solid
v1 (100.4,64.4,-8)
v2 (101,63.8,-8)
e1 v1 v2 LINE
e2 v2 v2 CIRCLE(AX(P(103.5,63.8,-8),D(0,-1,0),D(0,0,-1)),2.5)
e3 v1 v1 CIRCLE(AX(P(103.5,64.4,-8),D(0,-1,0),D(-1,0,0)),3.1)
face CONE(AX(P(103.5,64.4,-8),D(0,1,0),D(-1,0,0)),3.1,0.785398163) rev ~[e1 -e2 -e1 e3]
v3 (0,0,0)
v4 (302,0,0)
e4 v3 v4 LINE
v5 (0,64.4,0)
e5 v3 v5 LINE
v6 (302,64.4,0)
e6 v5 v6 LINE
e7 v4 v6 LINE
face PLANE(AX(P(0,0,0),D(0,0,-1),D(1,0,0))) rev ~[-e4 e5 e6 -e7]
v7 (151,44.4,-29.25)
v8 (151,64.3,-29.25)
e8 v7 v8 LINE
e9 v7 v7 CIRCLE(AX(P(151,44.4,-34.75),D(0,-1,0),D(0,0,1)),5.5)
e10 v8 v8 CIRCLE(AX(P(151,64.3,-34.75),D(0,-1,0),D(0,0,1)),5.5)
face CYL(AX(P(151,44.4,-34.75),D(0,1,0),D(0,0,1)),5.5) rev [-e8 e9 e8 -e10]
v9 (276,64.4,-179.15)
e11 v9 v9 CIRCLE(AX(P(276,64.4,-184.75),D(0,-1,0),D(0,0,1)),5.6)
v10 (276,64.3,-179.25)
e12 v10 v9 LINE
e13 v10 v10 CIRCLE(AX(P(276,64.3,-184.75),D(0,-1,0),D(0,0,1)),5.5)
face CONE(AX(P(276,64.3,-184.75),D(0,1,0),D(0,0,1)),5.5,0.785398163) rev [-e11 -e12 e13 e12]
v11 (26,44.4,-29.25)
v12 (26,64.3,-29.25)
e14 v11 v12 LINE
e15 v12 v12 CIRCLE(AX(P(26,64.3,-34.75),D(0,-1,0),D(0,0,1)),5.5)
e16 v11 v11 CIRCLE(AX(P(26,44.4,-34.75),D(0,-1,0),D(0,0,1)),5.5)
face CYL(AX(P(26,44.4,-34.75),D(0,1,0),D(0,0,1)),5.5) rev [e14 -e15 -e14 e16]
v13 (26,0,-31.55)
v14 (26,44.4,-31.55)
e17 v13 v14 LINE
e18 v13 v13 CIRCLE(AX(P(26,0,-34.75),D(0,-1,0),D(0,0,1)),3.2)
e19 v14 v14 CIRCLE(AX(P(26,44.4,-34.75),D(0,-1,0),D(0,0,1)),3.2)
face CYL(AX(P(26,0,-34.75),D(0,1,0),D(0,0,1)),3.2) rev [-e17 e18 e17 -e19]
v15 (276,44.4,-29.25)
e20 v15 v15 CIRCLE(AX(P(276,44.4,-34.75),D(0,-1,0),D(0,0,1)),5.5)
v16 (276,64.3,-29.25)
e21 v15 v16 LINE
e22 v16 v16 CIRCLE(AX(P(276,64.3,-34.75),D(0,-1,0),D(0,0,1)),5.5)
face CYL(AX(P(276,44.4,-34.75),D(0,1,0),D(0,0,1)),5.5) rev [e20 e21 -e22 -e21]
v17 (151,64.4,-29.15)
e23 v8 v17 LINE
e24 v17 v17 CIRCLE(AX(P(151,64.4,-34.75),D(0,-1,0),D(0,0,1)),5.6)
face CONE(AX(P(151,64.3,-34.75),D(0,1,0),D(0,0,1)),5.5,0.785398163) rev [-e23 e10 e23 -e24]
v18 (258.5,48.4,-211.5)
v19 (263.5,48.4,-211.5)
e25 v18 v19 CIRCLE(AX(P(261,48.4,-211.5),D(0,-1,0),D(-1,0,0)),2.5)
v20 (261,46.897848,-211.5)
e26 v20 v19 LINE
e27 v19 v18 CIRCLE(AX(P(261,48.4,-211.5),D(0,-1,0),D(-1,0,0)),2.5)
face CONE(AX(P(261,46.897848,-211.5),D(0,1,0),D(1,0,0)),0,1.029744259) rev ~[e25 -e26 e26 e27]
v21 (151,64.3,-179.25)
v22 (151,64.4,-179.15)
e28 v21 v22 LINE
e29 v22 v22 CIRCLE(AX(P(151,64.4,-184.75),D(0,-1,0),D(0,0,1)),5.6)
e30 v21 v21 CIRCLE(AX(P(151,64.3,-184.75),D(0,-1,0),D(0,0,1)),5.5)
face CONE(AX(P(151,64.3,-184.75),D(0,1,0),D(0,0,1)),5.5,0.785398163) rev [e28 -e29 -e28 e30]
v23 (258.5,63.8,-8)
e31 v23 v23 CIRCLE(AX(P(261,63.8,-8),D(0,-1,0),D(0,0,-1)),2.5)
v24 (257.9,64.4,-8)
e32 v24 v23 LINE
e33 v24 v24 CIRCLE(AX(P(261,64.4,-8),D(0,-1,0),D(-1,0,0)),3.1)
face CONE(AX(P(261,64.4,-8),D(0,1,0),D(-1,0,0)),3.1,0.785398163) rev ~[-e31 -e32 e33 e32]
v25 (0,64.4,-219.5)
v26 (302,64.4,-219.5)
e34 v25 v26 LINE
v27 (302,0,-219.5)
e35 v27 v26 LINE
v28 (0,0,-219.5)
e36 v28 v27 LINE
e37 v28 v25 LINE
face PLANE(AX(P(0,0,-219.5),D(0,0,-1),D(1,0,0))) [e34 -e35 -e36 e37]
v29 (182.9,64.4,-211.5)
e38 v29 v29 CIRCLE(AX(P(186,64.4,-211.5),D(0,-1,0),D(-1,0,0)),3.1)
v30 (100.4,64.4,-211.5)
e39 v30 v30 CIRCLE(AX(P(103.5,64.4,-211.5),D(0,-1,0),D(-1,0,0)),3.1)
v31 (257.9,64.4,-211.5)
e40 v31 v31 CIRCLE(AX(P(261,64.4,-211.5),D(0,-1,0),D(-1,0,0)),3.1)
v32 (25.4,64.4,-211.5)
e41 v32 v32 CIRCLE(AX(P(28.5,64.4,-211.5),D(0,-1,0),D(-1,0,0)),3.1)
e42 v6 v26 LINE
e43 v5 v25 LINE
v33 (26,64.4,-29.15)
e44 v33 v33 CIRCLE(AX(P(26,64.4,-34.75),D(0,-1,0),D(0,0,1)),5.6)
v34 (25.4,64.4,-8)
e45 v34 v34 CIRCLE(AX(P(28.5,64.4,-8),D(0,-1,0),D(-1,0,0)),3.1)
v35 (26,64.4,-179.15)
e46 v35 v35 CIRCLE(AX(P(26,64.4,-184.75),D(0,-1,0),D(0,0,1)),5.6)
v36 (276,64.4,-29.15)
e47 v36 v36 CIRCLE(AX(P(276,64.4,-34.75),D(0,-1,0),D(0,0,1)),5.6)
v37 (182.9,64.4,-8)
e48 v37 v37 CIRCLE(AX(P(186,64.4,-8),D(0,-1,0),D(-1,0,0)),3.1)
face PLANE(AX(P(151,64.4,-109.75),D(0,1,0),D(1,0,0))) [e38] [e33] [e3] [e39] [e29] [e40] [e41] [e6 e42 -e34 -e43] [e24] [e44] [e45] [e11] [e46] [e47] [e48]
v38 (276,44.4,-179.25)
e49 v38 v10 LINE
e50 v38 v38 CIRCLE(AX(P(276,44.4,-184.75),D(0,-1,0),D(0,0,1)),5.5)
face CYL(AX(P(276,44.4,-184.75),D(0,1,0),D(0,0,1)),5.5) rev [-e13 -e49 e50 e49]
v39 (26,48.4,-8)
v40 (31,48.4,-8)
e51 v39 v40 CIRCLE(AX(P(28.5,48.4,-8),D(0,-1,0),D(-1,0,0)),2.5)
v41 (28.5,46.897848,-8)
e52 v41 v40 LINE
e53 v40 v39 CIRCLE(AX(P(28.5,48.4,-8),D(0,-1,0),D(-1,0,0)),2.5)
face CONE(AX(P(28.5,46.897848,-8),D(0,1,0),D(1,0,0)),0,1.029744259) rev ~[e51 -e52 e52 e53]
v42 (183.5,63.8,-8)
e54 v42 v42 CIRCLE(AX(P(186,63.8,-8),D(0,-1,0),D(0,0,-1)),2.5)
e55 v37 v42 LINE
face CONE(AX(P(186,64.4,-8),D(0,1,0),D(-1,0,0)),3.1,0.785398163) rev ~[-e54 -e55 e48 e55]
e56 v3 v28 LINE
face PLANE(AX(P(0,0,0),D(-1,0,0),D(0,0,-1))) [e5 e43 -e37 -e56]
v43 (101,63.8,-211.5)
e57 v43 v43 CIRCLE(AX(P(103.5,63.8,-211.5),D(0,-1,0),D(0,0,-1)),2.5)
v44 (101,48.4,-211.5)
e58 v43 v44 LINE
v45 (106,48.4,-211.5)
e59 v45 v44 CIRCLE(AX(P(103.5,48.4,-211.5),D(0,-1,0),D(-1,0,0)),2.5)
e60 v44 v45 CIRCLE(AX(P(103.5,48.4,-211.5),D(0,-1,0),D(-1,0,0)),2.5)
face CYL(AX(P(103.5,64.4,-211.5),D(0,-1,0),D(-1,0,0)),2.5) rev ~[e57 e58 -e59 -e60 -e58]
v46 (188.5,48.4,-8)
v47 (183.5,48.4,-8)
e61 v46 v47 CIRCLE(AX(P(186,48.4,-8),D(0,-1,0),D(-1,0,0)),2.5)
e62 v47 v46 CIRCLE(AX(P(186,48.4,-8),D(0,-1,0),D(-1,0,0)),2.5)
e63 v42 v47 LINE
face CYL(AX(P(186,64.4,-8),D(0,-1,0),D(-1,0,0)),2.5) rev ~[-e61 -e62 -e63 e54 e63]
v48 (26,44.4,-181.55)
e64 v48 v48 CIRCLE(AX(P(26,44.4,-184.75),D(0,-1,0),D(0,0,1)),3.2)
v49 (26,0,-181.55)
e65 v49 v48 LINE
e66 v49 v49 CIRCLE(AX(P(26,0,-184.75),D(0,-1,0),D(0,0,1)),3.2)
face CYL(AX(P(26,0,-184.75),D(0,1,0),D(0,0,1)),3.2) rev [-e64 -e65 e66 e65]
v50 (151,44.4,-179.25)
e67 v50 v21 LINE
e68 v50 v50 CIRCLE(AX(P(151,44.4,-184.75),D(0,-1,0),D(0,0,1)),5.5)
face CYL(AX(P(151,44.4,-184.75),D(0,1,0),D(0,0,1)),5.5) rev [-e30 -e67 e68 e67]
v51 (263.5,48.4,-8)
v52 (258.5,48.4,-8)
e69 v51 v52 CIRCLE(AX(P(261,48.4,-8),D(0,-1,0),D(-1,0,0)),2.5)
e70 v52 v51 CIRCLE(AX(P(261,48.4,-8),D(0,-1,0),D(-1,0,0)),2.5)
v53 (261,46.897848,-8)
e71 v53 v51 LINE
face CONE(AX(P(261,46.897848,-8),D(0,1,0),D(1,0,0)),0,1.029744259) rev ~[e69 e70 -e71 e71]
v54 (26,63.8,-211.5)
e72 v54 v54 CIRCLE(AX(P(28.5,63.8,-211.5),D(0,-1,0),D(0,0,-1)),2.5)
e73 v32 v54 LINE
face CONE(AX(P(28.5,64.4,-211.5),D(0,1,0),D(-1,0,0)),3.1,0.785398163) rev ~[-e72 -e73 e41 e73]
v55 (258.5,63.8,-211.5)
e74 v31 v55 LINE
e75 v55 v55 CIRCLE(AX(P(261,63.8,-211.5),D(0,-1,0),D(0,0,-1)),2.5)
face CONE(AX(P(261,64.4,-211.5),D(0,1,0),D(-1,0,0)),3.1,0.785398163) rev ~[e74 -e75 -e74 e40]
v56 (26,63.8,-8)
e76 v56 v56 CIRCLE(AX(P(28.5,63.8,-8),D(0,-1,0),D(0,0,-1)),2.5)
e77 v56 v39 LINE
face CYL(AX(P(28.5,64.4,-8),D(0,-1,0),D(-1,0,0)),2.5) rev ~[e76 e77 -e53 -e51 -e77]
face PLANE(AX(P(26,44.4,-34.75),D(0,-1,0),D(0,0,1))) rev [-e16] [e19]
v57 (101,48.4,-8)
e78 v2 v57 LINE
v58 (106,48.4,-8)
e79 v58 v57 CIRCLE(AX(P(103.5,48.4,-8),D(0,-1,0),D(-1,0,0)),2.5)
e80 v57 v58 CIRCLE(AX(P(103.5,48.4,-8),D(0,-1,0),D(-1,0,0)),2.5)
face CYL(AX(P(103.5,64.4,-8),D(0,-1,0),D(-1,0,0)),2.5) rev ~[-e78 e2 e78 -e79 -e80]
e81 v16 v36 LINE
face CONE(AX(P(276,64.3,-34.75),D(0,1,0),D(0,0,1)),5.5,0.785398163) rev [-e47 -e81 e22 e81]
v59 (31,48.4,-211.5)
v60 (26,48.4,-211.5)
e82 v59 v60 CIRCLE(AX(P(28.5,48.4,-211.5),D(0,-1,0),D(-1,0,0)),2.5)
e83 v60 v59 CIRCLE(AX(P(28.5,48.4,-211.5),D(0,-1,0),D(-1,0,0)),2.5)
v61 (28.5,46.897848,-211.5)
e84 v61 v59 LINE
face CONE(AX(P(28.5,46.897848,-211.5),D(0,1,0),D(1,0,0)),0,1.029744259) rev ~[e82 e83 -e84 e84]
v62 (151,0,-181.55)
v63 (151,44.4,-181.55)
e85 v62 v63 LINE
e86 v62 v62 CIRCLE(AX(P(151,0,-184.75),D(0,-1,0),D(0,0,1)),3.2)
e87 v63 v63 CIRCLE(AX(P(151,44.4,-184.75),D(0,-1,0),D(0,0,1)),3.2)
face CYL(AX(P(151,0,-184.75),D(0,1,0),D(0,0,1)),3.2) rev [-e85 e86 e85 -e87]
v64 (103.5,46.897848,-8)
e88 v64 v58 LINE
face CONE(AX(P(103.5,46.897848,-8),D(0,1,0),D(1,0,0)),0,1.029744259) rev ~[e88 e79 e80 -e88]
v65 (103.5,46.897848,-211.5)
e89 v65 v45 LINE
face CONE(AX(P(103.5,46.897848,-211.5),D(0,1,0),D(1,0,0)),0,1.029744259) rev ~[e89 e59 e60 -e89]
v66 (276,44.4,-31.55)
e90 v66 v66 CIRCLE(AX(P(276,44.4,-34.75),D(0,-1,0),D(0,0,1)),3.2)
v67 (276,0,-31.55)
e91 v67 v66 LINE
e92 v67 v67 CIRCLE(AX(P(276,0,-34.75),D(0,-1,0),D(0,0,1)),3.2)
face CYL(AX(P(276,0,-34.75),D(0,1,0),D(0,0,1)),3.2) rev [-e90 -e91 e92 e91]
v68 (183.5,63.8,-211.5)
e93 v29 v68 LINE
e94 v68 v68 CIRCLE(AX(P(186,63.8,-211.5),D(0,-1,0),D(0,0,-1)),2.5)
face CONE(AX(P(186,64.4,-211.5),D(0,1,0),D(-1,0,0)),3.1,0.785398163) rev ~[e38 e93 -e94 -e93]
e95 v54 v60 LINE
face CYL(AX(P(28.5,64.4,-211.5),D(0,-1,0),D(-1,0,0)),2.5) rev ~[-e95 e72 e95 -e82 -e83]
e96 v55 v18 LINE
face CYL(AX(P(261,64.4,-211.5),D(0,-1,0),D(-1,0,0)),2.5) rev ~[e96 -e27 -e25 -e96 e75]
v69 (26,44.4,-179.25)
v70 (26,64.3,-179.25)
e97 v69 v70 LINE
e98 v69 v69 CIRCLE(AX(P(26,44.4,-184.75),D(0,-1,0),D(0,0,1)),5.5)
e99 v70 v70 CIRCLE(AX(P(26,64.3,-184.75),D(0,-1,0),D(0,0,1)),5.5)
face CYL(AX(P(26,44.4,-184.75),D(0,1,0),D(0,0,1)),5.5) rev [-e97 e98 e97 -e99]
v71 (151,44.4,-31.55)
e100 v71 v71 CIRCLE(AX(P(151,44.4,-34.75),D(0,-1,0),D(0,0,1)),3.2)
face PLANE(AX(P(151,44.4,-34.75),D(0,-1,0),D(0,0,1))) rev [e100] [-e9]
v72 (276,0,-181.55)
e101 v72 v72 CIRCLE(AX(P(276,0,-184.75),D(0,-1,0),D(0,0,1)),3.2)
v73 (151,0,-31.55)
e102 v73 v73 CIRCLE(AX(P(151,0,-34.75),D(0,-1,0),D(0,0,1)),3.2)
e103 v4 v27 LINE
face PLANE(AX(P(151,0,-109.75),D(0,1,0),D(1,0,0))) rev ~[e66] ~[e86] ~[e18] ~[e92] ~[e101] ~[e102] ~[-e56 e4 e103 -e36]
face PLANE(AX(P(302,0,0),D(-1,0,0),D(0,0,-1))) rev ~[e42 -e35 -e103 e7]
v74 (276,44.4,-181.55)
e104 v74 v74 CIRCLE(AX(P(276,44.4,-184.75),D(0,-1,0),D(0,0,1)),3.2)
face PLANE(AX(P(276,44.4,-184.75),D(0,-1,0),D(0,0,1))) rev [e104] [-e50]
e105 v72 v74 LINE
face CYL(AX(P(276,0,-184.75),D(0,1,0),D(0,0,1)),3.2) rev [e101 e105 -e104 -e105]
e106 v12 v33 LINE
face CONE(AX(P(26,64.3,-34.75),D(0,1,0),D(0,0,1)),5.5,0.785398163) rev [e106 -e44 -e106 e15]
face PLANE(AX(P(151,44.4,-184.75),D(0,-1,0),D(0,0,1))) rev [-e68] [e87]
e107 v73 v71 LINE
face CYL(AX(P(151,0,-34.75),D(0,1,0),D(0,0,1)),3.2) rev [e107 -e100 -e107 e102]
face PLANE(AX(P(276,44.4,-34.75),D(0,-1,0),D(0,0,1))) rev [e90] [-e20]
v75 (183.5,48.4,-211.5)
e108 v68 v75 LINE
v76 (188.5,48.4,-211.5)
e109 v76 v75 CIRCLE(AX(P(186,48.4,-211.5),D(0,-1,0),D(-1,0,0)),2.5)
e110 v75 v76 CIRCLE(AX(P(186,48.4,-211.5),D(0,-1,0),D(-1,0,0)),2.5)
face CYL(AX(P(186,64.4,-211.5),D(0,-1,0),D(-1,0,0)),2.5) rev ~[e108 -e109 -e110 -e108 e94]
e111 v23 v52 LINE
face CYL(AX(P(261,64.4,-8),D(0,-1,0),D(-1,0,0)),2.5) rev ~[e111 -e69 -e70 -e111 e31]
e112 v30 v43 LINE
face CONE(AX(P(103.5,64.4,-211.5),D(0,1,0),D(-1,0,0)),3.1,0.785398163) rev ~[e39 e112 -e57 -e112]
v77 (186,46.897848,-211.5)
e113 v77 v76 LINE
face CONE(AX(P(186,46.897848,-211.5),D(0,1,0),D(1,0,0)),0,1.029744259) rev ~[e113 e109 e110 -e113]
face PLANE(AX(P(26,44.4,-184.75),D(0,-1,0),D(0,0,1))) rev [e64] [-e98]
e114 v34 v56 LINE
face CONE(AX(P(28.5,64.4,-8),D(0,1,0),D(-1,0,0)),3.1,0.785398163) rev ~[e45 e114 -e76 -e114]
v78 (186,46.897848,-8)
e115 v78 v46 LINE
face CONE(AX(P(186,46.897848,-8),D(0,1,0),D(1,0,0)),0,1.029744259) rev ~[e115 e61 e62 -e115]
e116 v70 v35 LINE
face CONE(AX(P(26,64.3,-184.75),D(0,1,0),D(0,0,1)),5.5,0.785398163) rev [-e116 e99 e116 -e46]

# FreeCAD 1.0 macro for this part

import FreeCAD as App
import Part
import Sketcher

V = App.Vector
Q = App.Units.Quantity

doc = App.newDocument("Part")
params = doc.addObject("Spreadsheet::Sheet", "Params")
for row, (alias, value) in enumerate([
    ("sketch1_width", "302 mm"),
    ("sketch1_height", "219.5 mm"),
    ("pad1_length", "64.4 mm"),
    ("sketch2_diameter", "5 mm"),
    ("hole_diameter", "5 mm"),
    ("hole_depth", "16 mm"),
    ("hole_csink_diameter", "6.2 mm"),
    ("sketch3_width", "64.4 mm"),
    ("sketch3_width2", "19.9 mm"),
    ("sketch3_width3", "44.4 mm"),
    ("sketch3_height", "5.6 mm"),
    ("sketch3_height2", "2.3 mm"),
    ("groove_angle", "360 deg"),
    ("linearpattern_pitch", "150 mm"),
    ("linearpattern2_pitch", "195.256242 mm"),
    ("linearpattern3_pitch", "125 mm"),
    ("linearpattern4_pitch", "250 mm"),
    ("linearpattern5_pitch", "291.547595 mm"),
], start=1):
    params.set(f"A{row}", alias)
    params.set(f"B{row}", "=" + value)
    params.setAlias(f"B{row}", alias)

body = doc.addObject("PartDesign::Body", "Body")

sketch1 = body.newObject("Sketcher::SketchObject", "Sketch")
sketch1.AttachmentSupport = (doc.getObject("XZ_Plane"), [""])
sketch1.MapMode = "FlatFace"
sketch1.addGeometry([
    Part.LineSegment(V(0, -219.5, 0), V(0, 0, 0)),
    Part.LineSegment(V(0, 0, 0), V(302, 0, 0)),
    Part.LineSegment(V(302, 0, 0), V(302, -219.5, 0)),
    Part.LineSegment(V(302, -219.5, 0), V(0, -219.5, 0)),
], False)
sketch1.addConstraint([
    Sketcher.Constraint("Coincident", 0, 2, 1, 1),
    Sketcher.Constraint("Coincident", 1, 2, 2, 1),
    Sketcher.Constraint("Coincident", 2, 2, 3, 1),
    Sketcher.Constraint("Coincident", 3, 2, 0, 1),
    Sketcher.Constraint("Vertical", 0),
    Sketcher.Constraint("Horizontal", 1),
    Sketcher.Constraint("Vertical", 2),
    Sketcher.Constraint("Horizontal", 3),
    Sketcher.Constraint("Coincident", 0, 2, -1, 1),
    Sketcher.Constraint("DistanceX", 1, 1, 1, 2, 302.0),
    Sketcher.Constraint("DistanceY", 0, 1, 0, 2, 219.5),
])
sketch1.setExpression("Constraints[9]", "Params.sketch1_width")
sketch1.setExpression("Constraints[10]", "Params.sketch1_height")
pad1 = body.newObject("PartDesign::Pad", "Pad")
pad1.Profile = sketch1
pad1.setExpression("Length", "Params.pad1_length")
pad1.Reversed = True

sketch2 = body.newObject("Sketcher::SketchObject", "Sketch001")
sketch2.AttachmentSupport = (doc.getObject("XZ_Plane"), [""])
sketch2.MapMode = "FlatFace"
sketch2.AttachmentOffset = App.Placement(V(0, 0, -64.4), App.Rotation())
sketch2.addGeometry([
    Part.Circle(V(28.5, -8, 0), V(0, 0, 1), 2.5),
    Part.Circle(V(103.5, -8, 0), V(0, 0, 1), 2.5),
    Part.Circle(V(186, -8, 0), V(0, 0, 1), 2.5),
    Part.Circle(V(261, -8, 0), V(0, 0, 1), 2.5),
    Part.Circle(V(261, -211.5, 0), V(0, 0, 1), 2.5),
    Part.Circle(V(186, -211.5, 0), V(0, 0, 1), 2.5),
    Part.Circle(V(103.5, -211.5, 0), V(0, 0, 1), 2.5),
    Part.Circle(V(28.5, -211.5, 0), V(0, 0, 1), 2.5),
], False)
sketch2.addConstraint([
    Sketcher.Constraint("Equal", 0, 1),
    Sketcher.Constraint("Equal", 1, 2),
    Sketcher.Constraint("Equal", 2, 3),
    Sketcher.Constraint("Equal", 3, 4),
    Sketcher.Constraint("Equal", 4, 5),
    Sketcher.Constraint("Equal", 5, 6),
    Sketcher.Constraint("Equal", 6, 7),
    Sketcher.Constraint("Horizontal", 0, 3, 1, 3),
    Sketcher.Constraint("Horizontal", 1, 3, 2, 3),
    Sketcher.Constraint("Horizontal", 2, 3, 3, 3),
    Sketcher.Constraint("Horizontal", 4, 3, 5, 3),
    Sketcher.Constraint("Horizontal", 5, 3, 6, 3),
    Sketcher.Constraint("Horizontal", 6, 3, 7, 3),
    Sketcher.Constraint("Vertical", 3, 3, 4, 3),
    Sketcher.Constraint("Vertical", 2, 3, 5, 3),
    Sketcher.Constraint("Vertical", 1, 3, 6, 3),
    Sketcher.Constraint("Vertical", 0, 3, 7, 3),
    Sketcher.Constraint("Diameter", 0, 5.0),
    Sketcher.Constraint("DistanceY", 0, 3, -1, 1, 8.0),
    Sketcher.Constraint("DistanceX", -1, 1, 2, 3, 186.0),
    Sketcher.Constraint("DistanceX", -1, 1, 3, 3, 261.0),
    Sketcher.Constraint("DistanceX", 0, 3, 1, 3, 75.0),
    Sketcher.Constraint("DistanceX", -1, 1, 0, 3, 28.5),
    Sketcher.Constraint("DistanceY", 4, 3, -1, 1, 211.5),
])
sketch2.setExpression("Constraints[17]", "Params.sketch2_diameter")
doc.recompute()
hole = body.newObject("PartDesign::Hole", "Hole")
hole.Profile = sketch2
hole.ThreadType = "None"
hole.setExpression("Diameter", "Params.hole_diameter")
hole.DepthType = "Dimension"
hole.setExpression("Depth", "Params.hole_depth")
hole.DrillPoint = "Angled"
hole.DrillPointAngle = 118
hole.HoleCutType = "Countersink"
hole.setExpression("HoleCutDiameter", "Params.hole_csink_diameter")
hole.HoleCutCountersinkAngle = 90
hole.Reversed = True

sketch3 = body.newObject("Sketcher::SketchObject", "Sketch002")
sketch3.AttachmentSupport = (doc.getObject("YZ_Plane"), [""])
sketch3.MapMode = "FlatFace"
sketch3.AttachmentOffset = App.Placement(V(0, 0, 26), App.Rotation())
sketch3.addGeometry([
    Part.LineSegment(V(0, -34.75, 0), V(64.4, -34.75, 0)),
    Part.LineSegment(V(64.4, -34.75, 0), V(64.4, -29.15, 0)),
    Part.LineSegment(V(64.4, -29.15, 0), V(64.3, -29.25, 0)),
    Part.LineSegment(V(64.3, -29.25, 0), V(44.4, -29.25, 0)),
    Part.LineSegment(V(44.4, -29.25, 0), V(44.4, -31.55, 0)),
    Part.LineSegment(V(44.4, -31.55, 0), V(0, -31.55, 0)),
    Part.LineSegment(V(0, -31.55, 0), V(0, -34.75, 0)),
], False)
sketch3.addGeometry(Part.LineSegment(V(64.4, -34.75, 0), V(0, -34.75, 0)), True)
sketch3.addConstraint([
    Sketcher.Constraint("Coincident", 0, 2, 1, 1),
    Sketcher.Constraint("Coincident", 1, 2, 2, 1),
    Sketcher.Constraint("Coincident", 2, 2, 3, 1),
    Sketcher.Constraint("Coincident", 3, 2, 4, 1),
    Sketcher.Constraint("Coincident", 4, 2, 5, 1),
    Sketcher.Constraint("Coincident", 5, 2, 6, 1),
    Sketcher.Constraint("Coincident", 6, 2, 0, 1),
    Sketcher.Constraint("Horizontal", 0),
    Sketcher.Constraint("Vertical", 1),
    Sketcher.Constraint("Horizontal", 3),
    Sketcher.Constraint("Vertical", 4),
    Sketcher.Constraint("Horizontal", 5),
    Sketcher.Constraint("Vertical", 6),
    Sketcher.Constraint("Horizontal", 7),
    Sketcher.Constraint("Coincident", 7, 1, 0, 2),
    Sketcher.Constraint("PointOnObject", 5, 2, -2),
    Sketcher.Constraint("PointOnObject", 7, 2, -2),
    Sketcher.Constraint("Angle", 2, Q("-135 deg")),
    Sketcher.Constraint("DistanceX", 0, 1, 0, 2, 64.4),
    Sketcher.Constraint("DistanceX", 3, 2, 3, 1, 19.9),
    Sketcher.Constraint("DistanceX", 5, 2, 5, 1, 44.4),
    Sketcher.Constraint("DistanceY", 1, 1, 1, 2, 5.6),
    Sketcher.Constraint("DistanceY", 4, 2, 4, 1, 2.3),
    Sketcher.Constraint("DistanceY", 0, 2, -1, 1, 34.75),
])
sketch3.setExpression("Constraints[18]", "Params.sketch3_width")
sketch3.setExpression("Constraints[19]", "Params.sketch3_width2")
sketch3.setExpression("Constraints[20]", "Params.sketch3_width3")
sketch3.setExpression("Constraints[21]", "Params.sketch3_height")
sketch3.setExpression("Constraints[22]", "Params.sketch3_height2")
groove = body.newObject("PartDesign::Groove", "Groove")
groove.Profile = sketch3
groove.ReferenceAxis = (sketch3, ["Axis0"])
groove.setExpression("Angle", "Params.groove_angle")
doc.recompute()

linearpattern = body.newObject("PartDesign::LinearPattern", "LinearPattern")
linearpattern.Originals = [groove]
linearpattern.Direction = (doc.getObject("Z_Axis"), [""])
linearpattern.Mode = "offset"
linearpattern.setExpression("Offset", "Params.linearpattern_pitch")
linearpattern.Occurrences = 2
linearpattern.Reversed = True
body.Tip = linearpattern
doc.recompute()

datumline = body.newObject("PartDesign::Line", "DatumLine")
datumline.Placement = App.Placement(V(0, 0, 0), App.Rotation(V(0, 0, 1), V(0.6401844, 0, -0.76822128)))
linearpattern2 = body.newObject("PartDesign::LinearPattern", "LinearPattern001")
linearpattern2.Originals = [groove]
linearpattern2.Direction = (datumline, [""])
linearpattern2.Mode = "offset"
linearpattern2.setExpression("Offset", "Params.linearpattern2_pitch")
linearpattern2.Occurrences = 2
body.Tip = linearpattern2
doc.recompute()

linearpattern3 = body.newObject("PartDesign::LinearPattern", "LinearPattern002")
linearpattern3.Originals = [groove]
linearpattern3.Direction = (doc.getObject("X_Axis"), [""])
linearpattern3.Mode = "offset"
linearpattern3.setExpression("Offset", "Params.linearpattern3_pitch")
linearpattern3.Occurrences = 2
body.Tip = linearpattern3
doc.recompute()

linearpattern4 = body.newObject("PartDesign::LinearPattern", "LinearPattern003")
linearpattern4.Originals = [groove]
linearpattern4.Direction = (doc.getObject("X_Axis"), [""])
linearpattern4.Mode = "offset"
linearpattern4.setExpression("Offset", "Params.linearpattern4_pitch")
linearpattern4.Occurrences = 2
body.Tip = linearpattern4
doc.recompute()

datumline2 = body.newObject("PartDesign::Line", "DatumLine001")
datumline2.Placement = App.Placement(V(0, 0, 0), App.Rotation(V(0, 0, 1), V(0.857492926, 0, -0.514495755)))
linearpattern5 = body.newObject("PartDesign::LinearPattern", "LinearPattern004")
linearpattern5.Originals = [groove]
linearpattern5.Direction = (datumline2, [""])
linearpattern5.Mode = "offset"
linearpattern5.setExpression("Offset", "Params.linearpattern5_pitch")
linearpattern5.Occurrences = 2
body.Tip = linearpattern5

doc.recompute()
